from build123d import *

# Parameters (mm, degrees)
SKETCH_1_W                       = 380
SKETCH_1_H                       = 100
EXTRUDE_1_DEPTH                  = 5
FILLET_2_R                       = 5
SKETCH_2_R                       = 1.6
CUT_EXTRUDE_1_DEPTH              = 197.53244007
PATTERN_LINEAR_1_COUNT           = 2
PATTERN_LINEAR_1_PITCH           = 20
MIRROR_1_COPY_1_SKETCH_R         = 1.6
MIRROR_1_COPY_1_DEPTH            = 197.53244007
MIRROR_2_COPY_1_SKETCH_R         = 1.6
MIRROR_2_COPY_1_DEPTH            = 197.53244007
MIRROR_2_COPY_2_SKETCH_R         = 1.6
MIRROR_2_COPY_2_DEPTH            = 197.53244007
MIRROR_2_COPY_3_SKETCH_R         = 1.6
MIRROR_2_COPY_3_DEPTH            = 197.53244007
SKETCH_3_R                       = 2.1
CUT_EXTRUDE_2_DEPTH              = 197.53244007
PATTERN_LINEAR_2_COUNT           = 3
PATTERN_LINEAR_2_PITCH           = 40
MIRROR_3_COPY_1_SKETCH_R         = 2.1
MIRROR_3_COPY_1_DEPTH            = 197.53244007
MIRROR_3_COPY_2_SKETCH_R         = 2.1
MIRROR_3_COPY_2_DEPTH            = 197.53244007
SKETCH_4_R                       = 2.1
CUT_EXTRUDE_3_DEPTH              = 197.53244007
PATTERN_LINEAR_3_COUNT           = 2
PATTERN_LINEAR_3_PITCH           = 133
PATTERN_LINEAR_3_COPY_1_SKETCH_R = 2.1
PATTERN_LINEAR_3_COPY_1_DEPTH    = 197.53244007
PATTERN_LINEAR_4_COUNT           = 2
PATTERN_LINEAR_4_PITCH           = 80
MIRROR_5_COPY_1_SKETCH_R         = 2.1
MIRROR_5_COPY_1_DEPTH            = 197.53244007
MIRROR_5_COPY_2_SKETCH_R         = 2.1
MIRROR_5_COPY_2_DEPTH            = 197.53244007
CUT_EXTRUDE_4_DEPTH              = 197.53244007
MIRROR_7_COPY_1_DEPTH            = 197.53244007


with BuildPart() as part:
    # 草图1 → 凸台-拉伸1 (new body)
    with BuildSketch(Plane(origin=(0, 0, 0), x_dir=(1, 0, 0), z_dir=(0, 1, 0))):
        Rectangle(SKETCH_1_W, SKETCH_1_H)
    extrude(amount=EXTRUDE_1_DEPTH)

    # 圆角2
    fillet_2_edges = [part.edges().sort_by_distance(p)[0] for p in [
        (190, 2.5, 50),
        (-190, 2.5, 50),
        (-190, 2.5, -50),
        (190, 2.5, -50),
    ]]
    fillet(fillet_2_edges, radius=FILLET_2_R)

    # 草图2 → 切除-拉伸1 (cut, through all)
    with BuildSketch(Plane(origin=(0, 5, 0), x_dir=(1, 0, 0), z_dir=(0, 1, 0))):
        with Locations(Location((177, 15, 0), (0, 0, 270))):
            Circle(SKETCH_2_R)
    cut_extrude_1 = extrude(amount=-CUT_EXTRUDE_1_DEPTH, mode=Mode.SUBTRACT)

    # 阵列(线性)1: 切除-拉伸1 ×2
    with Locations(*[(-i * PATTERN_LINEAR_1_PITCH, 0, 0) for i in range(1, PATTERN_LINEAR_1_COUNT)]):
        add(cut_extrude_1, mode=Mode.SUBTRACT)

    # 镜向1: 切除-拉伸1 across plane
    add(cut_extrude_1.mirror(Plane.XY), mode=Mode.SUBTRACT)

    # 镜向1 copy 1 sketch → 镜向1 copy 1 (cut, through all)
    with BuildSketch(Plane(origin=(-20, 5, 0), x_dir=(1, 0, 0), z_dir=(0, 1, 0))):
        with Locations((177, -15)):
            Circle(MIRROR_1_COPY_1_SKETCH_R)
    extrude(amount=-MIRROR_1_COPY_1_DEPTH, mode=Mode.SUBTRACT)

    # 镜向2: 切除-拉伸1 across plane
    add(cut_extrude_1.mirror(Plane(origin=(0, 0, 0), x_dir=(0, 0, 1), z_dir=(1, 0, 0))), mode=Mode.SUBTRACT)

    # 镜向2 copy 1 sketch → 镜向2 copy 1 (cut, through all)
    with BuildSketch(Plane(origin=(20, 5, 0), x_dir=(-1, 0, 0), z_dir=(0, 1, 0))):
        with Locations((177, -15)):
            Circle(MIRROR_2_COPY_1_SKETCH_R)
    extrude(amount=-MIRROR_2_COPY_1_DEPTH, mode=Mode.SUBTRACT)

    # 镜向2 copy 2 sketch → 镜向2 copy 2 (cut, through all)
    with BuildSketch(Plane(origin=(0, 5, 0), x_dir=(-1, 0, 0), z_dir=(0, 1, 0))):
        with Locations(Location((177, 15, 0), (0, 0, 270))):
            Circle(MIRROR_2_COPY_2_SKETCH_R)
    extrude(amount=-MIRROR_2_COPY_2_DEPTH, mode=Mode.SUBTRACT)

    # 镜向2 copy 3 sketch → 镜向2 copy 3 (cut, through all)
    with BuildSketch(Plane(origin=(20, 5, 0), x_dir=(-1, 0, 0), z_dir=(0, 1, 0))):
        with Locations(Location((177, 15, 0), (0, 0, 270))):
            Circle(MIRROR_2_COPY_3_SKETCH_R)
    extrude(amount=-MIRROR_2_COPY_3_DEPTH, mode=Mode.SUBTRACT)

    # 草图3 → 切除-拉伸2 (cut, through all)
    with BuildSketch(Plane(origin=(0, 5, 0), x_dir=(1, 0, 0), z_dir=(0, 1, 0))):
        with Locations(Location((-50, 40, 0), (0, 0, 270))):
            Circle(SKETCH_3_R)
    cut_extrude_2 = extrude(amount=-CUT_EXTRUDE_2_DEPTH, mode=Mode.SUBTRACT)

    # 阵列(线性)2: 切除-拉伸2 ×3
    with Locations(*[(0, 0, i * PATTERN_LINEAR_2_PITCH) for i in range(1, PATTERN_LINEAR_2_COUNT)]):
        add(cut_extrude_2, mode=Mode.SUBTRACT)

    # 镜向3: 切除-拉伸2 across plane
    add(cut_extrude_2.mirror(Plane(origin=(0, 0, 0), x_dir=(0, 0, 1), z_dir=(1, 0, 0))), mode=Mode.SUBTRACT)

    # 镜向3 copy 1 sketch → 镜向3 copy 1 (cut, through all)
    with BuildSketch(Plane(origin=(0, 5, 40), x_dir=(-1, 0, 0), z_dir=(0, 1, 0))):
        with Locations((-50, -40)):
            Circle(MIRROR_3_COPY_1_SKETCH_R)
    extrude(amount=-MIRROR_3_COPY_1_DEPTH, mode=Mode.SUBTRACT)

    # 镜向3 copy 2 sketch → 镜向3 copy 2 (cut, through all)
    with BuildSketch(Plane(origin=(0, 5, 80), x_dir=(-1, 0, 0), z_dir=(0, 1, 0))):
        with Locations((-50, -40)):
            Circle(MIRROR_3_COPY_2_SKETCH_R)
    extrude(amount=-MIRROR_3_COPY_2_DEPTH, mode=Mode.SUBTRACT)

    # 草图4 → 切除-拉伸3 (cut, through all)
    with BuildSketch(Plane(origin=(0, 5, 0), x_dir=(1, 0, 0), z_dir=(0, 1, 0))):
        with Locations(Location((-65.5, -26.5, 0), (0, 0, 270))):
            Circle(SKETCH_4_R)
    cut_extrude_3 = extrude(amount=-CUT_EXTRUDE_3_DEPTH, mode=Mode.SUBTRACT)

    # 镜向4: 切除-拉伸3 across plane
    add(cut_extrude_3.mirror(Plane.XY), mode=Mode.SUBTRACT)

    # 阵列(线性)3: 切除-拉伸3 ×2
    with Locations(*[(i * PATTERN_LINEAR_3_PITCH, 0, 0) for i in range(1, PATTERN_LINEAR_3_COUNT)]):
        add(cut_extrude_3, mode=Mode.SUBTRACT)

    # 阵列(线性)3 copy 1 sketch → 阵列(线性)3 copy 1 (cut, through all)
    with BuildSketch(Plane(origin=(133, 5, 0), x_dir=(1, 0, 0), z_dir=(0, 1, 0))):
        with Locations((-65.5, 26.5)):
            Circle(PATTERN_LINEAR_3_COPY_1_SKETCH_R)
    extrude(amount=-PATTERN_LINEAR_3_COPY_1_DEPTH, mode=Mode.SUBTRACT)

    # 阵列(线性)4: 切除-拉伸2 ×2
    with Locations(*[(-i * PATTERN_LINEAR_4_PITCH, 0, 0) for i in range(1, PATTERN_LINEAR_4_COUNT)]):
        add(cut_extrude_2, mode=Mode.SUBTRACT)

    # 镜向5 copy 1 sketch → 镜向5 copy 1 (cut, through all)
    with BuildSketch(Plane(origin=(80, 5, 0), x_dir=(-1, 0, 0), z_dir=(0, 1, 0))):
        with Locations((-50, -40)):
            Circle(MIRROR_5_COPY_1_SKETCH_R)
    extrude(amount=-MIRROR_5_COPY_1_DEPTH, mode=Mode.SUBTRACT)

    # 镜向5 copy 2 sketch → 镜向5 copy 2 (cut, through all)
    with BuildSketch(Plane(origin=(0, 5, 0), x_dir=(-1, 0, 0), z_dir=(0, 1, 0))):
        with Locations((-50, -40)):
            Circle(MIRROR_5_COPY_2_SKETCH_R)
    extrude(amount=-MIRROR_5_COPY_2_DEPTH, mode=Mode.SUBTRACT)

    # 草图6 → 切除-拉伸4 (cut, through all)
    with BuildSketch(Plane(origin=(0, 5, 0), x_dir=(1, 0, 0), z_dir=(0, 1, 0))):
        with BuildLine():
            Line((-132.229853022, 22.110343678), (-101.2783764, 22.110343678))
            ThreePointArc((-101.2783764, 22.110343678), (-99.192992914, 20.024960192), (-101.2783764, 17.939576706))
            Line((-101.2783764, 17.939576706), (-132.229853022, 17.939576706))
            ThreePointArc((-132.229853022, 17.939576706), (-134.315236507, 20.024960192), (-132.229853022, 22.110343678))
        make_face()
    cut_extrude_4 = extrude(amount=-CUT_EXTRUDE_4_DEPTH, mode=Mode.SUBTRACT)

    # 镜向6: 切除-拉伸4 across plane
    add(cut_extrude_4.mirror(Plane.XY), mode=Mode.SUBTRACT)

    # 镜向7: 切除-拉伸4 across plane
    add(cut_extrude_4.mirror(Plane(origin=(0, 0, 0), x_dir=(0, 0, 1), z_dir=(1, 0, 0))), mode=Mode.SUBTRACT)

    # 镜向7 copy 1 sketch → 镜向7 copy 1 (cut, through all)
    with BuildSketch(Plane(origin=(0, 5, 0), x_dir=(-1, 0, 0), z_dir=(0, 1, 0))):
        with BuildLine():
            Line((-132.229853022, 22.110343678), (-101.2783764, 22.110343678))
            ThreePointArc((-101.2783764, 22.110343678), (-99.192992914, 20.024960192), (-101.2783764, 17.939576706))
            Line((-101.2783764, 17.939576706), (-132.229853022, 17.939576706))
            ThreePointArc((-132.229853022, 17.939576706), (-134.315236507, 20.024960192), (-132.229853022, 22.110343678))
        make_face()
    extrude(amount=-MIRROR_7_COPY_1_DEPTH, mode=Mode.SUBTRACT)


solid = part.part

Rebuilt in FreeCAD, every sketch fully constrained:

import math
import FreeCAD as App
import Part
import Sketcher

V = App.Vector
Q = App.Units.Quantity


def edges_at(feature, points):
    """Names of the edges that pass closest to the given points."""
    edges = feature.Shape.Edges
    near = lambda p: min(range(len(edges)), key=lambda i: edges[i].distToShape(Part.Vertex(*p))[0])
    return sorted({f"Edge{near(p) + 1}" for p in points})

doc = App.newDocument("Part")
body = doc.addObject("PartDesign::Body", "Body")

# Sketch on XZ plane
sketch1 = body.newObject("Sketcher::SketchObject", "Sketch")
sketch1.AttachmentSupport = (doc.getObject("XZ_Plane"), [""])
sketch1.MapMode = "FlatFace"
sketch1.addGeometry([
    Part.LineSegment(V(-190, -50, 0), V(-190, 50, 0)),
    Part.LineSegment(V(-190, 50, 0), V(190, 50, 0)),
    Part.LineSegment(V(190, 50, 0), V(190, -50, 0)),
    Part.LineSegment(V(190, -50, 0), V(-190, -50, 0)),
], False)
sketch1.addConstraint([
    Sketcher.Constraint("Coincident", 0, 2, 1, 1),
    Sketcher.Constraint("Coincident", 1, 2, 2, 1),
    Sketcher.Constraint("Coincident", 2, 2, 3, 1),
    Sketcher.Constraint("Coincident", 3, 2, 0, 1),
    Sketcher.Constraint("Vertical", 0),
    Sketcher.Constraint("Horizontal", 1),
    Sketcher.Constraint("Vertical", 2),
    Sketcher.Constraint("Horizontal", 3),
    Sketcher.Constraint("Symmetric", 0, 2, 2, 2, -1, 1),
    Sketcher.Constraint("DistanceX", 1, 1, 1, 2, Q("380 mm")),
    Sketcher.Constraint("DistanceY", 0, 1, 0, 2, Q("100 mm")),
])
pad1 = body.newObject("PartDesign::Pad", "Pad")
pad1.Profile = sketch1
pad1.Length = 5
pad1.Reversed = True
doc.recompute()

fillet = body.newObject("PartDesign::Fillet", "Fillet")
fillet.Base = (pad1, edges_at(pad1, [
    (190, 2.5, 50),
    (-190, 2.5, 50),
    (-190, 2.5, -50),
    (190, 2.5, -50),
]))
fillet.Radius = 5

# Sketch on XZ plane
sketch2 = body.newObject("Sketcher::SketchObject", "Sketch001")
sketch2.AttachmentSupport = (doc.getObject("XZ_Plane"), [""])
sketch2.MapMode = "FlatFace"
sketch2.AttachmentOffset = App.Placement(V(0, 0, -5), App.Rotation())
sketch2.addGeometry(Part.Circle(V(177, -15, 0), V(0, 0, 1), 1.6), False)
sketch2.addConstraint([
    Sketcher.Constraint("Diameter", 0, Q("3.2 mm")),
    Sketcher.Constraint("DistanceX", -1, 1, 0, 3, Q("177 mm")),
    Sketcher.Constraint("DistanceY", 0, 3, -1, 1, Q("15 mm")),
])
pocket1 = body.newObject("PartDesign::Pocket", "Pocket")
pocket1.Profile = sketch2
pocket1.Type = "ThroughAll"
pocket1.Reversed = True
doc.recompute()

linearpattern = body.newObject("PartDesign::LinearPattern", "LinearPattern")
linearpattern.Originals = [pocket1]
linearpattern.Direction = (doc.getObject("X_Axis"), [""])
linearpattern.Mode = "offset"
linearpattern.Offset = 20
linearpattern.Occurrences = 2
linearpattern.Reversed = True
body.Tip = linearpattern
doc.recompute()

mirrored = body.newObject("PartDesign::Mirrored", "Mirrored")
mirrored.Originals = [pocket1]
mirrored.MirrorPlane = (doc.getObject("XY_Plane"), [""])
body.Tip = mirrored

# Sketch on XZ plane
sketch3 = body.newObject("Sketcher::SketchObject", "Sketch002")
sketch3.AttachmentSupport = (doc.getObject("XZ_Plane"), [""])
sketch3.MapMode = "FlatFace"
sketch3.AttachmentOffset = App.Placement(V(0, 0, -5), App.Rotation())
sketch3.addGeometry(Part.Circle(V(157, 15, 0), V(0, 0, 1), 1.6), False)
sketch3.addConstraint([
    Sketcher.Constraint("Diameter", 0, Q("3.2 mm")),
    Sketcher.Constraint("DistanceX", -1, 1, 0, 3, Q("157 mm")),
    Sketcher.Constraint("DistanceY", -1, 1, 0, 3, Q("15 mm")),
])
pocket2 = body.newObject("PartDesign::Pocket", "Pocket001")
pocket2.Profile = sketch3
pocket2.Type = "ThroughAll"
pocket2.Reversed = True
doc.recompute()

mirrored2 = body.newObject("PartDesign::Mirrored", "Mirrored001")
mirrored2.Originals = [pocket1]
mirrored2.MirrorPlane = (doc.getObject("YZ_Plane"), [""])
body.Tip = mirrored2

# Sketch on XZ plane
sketch4 = body.newObject("Sketcher::SketchObject", "Sketch003")
sketch4.AttachmentSupport = (doc.getObject("XZ_Plane"), [""])
sketch4.MapMode = "FlatFace"
sketch4.AttachmentOffset = App.Placement(V(0, 0, -5), App.Rotation())
sketch4.addGeometry(Part.Circle(V(-157, -15, 0), V(0, 0, 1), 1.6), False)
sketch4.addConstraint([
    Sketcher.Constraint("Diameter", 0, Q("3.2 mm")),
    Sketcher.Constraint("DistanceX", 0, 3, -1, 1, Q("157 mm")),
    Sketcher.Constraint("DistanceY", 0, 3, -1, 1, Q("15 mm")),
])
pocket3 = body.newObject("PartDesign::Pocket", "Pocket002")
pocket3.Profile = sketch4
pocket3.Type = "ThroughAll"
pocket3.Reversed = True

# Sketch on XZ plane
sketch5 = body.newObject("Sketcher::SketchObject", "Sketch004")
sketch5.AttachmentSupport = (doc.getObject("XZ_Plane"), [""])
sketch5.MapMode = "FlatFace"
sketch5.AttachmentOffset = App.Placement(V(0, 0, -5), App.Rotation())
sketch5.addGeometry(Part.Circle(V(-177, 15, 0), V(0, 0, 1), 1.6), False)
sketch5.addConstraint([
    Sketcher.Constraint("Diameter", 0, Q("3.2 mm")),
    Sketcher.Constraint("DistanceX", 0, 3, -1, 1, Q("177 mm")),
    Sketcher.Constraint("DistanceY", -1, 1, 0, 3, Q("15 mm")),
])
pocket4 = body.newObject("PartDesign::Pocket", "Pocket003")
pocket4.Profile = sketch5
pocket4.Type = "ThroughAll"
pocket4.Reversed = True

# Sketch on XZ plane
sketch6 = body.newObject("Sketcher::SketchObject", "Sketch005")
sketch6.AttachmentSupport = (doc.getObject("XZ_Plane"), [""])
sketch6.MapMode = "FlatFace"
sketch6.AttachmentOffset = App.Placement(V(0, 0, -5), App.Rotation())
sketch6.addGeometry(Part.Circle(V(-157, 15, 0), V(0, 0, 1), 1.6), False)
sketch6.addConstraint([
    Sketcher.Constraint("Diameter", 0, Q("3.2 mm")),
    Sketcher.Constraint("DistanceX", 0, 3, -1, 1, Q("157 mm")),
    Sketcher.Constraint("DistanceY", -1, 1, 0, 3, Q("15 mm")),
])
pocket5 = body.newObject("PartDesign::Pocket", "Pocket004")
pocket5.Profile = sketch6
pocket5.Type = "ThroughAll"
pocket5.Reversed = True

# Sketch on XZ plane
sketch7 = body.newObject("Sketcher::SketchObject", "Sketch006")
sketch7.AttachmentSupport = (doc.getObject("XZ_Plane"), [""])
sketch7.MapMode = "FlatFace"
sketch7.AttachmentOffset = App.Placement(V(0, 0, -5), App.Rotation())
sketch7.addGeometry(Part.Circle(V(-50, -40, 0), V(0, 0, 1), 2.1), False)
sketch7.addConstraint([
    Sketcher.Constraint("Diameter", 0, Q("4.2 mm")),
    Sketcher.Constraint("DistanceX", 0, 3, -1, 1, Q("50 mm")),
    Sketcher.Constraint("DistanceY", 0, 3, -1, 1, Q("40 mm")),
])
pocket6 = body.newObject("PartDesign::Pocket", "Pocket005")
pocket6.Profile = sketch7
pocket6.Type = "ThroughAll"
pocket6.Reversed = True
doc.recompute()

linearpattern2 = body.newObject("PartDesign::LinearPattern", "LinearPattern001")
linearpattern2.Originals = [pocket6]
linearpattern2.Direction = (doc.getObject("Z_Axis"), [""])
linearpattern2.Mode = "offset"
linearpattern2.Offset = 40
linearpattern2.Occurrences = 3
body.Tip = linearpattern2
doc.recompute()

mirrored3 = body.newObject("PartDesign::Mirrored", "Mirrored002")
mirrored3.Originals = [pocket6]
mirrored3.MirrorPlane = (doc.getObject("YZ_Plane"), [""])
body.Tip = mirrored3

# Sketch on XZ plane
sketch8 = body.newObject("Sketcher::SketchObject", "Sketch007")
sketch8.AttachmentSupport = (doc.getObject("XZ_Plane"), [""])
sketch8.MapMode = "FlatFace"
sketch8.AttachmentOffset = App.Placement(V(0, 0, -5), App.Rotation())
sketch8.addGeometry(Part.Circle(V(50, 0, 0), V(0, 0, 1), 2.1), False)
sketch8.addConstraint([
    Sketcher.Constraint("PointOnObject", 0, 3, -1),
    Sketcher.Constraint("Diameter", 0, Q("4.2 mm")),
    Sketcher.Constraint("DistanceX", -1, 1, 0, 3, Q("50 mm")),
])
pocket7 = body.newObject("PartDesign::Pocket", "Pocket006")
pocket7.Profile = sketch8
pocket7.Type = "ThroughAll"
pocket7.Reversed = True

# Sketch on XZ plane
sketch9 = body.newObject("Sketcher::SketchObject", "Sketch008")
sketch9.AttachmentSupport = (doc.getObject("XZ_Plane"), [""])
sketch9.MapMode = "FlatFace"
sketch9.AttachmentOffset = App.Placement(V(0, 0, -5), App.Rotation())
sketch9.addGeometry(Part.Circle(V(50, 40, 0), V(0, 0, 1), 2.1), False)
sketch9.addConstraint([
    Sketcher.Constraint("Diameter", 0, Q("4.2 mm")),
    Sketcher.Constraint("DistanceX", -1, 1, 0, 3, Q("50 mm")),
    Sketcher.Constraint("DistanceY", -1, 1, 0, 3, Q("40 mm")),
])
pocket8 = body.newObject("PartDesign::Pocket", "Pocket007")
pocket8.Profile = sketch9
pocket8.Type = "ThroughAll"
pocket8.Reversed = True

# Sketch on XZ plane
sketch10 = body.newObject("Sketcher::SketchObject", "Sketch009")
sketch10.AttachmentSupport = (doc.getObject("XZ_Plane"), [""])
sketch10.MapMode = "FlatFace"
sketch10.AttachmentOffset = App.Placement(V(0, 0, -5), App.Rotation())
sketch10.addGeometry(Part.Circle(V(-65.5, 26.5, 0), V(0, 0, 1), 2.1), False)
sketch10.addConstraint([
    Sketcher.Constraint("Diameter", 0, Q("4.2 mm")),
    Sketcher.Constraint("DistanceX", 0, 3, -1, 1, Q("65.5 mm")),
    Sketcher.Constraint("DistanceY", -1, 1, 0, 3, Q("26.5 mm")),
])
pocket9 = body.newObject("PartDesign::Pocket", "Pocket008")
pocket9.Profile = sketch10
pocket9.Type = "ThroughAll"
pocket9.Reversed = True
doc.recompute()

mirrored4 = body.newObject("PartDesign::Mirrored", "Mirrored003")
mirrored4.Originals = [pocket9]
mirrored4.MirrorPlane = (doc.getObject("XY_Plane"), [""])
body.Tip = mirrored4
doc.recompute()

linearpattern3 = body.newObject("PartDesign::LinearPattern", "LinearPattern002")
linearpattern3.Originals = [pocket9]
linearpattern3.Direction = (doc.getObject("X_Axis"), [""])
linearpattern3.Mode = "offset"
linearpattern3.Offset = 133
linearpattern3.Occurrences = 2
body.Tip = linearpattern3

# Sketch on XZ plane
sketch11 = body.newObject("Sketcher::SketchObject", "Sketch010")
sketch11.AttachmentSupport = (doc.getObject("XZ_Plane"), [""])
sketch11.MapMode = "FlatFace"
sketch11.AttachmentOffset = App.Placement(V(0, 0, -5), App.Rotation())
sketch11.addGeometry(Part.Circle(V(67.5, -26.5, 0), V(0, 0, 1), 2.1), False)
sketch11.addConstraint([
    Sketcher.Constraint("Diameter", 0, Q("4.2 mm")),
    Sketcher.Constraint("DistanceX", -1, 1, 0, 3, Q("67.5 mm")),
    Sketcher.Constraint("DistanceY", 0, 3, -1, 1, Q("26.5 mm")),
])
pocket10 = body.newObject("PartDesign::Pocket", "Pocket009")
pocket10.Profile = sketch11
pocket10.Type = "ThroughAll"
pocket10.Reversed = True
doc.recompute()

linearpattern4 = body.newObject("PartDesign::LinearPattern", "LinearPattern003")
linearpattern4.Originals = [pocket6]
linearpattern4.Direction = (doc.getObject("X_Axis"), [""])
linearpattern4.Mode = "offset"
linearpattern4.Offset = 80
linearpattern4.Occurrences = 2
linearpattern4.Reversed = True
body.Tip = linearpattern4

# Sketch on XZ plane
sketch12 = body.newObject("Sketcher::SketchObject", "Sketch011")
sketch12.AttachmentSupport = (doc.getObject("XZ_Plane"), [""])
sketch12.MapMode = "FlatFace"
sketch12.AttachmentOffset = App.Placement(V(0, 0, -5), App.Rotation())
sketch12.addGeometry(Part.Circle(V(130, -40, 0), V(0, 0, 1), 2.1), False)
sketch12.addConstraint([
    Sketcher.Constraint("Diameter", 0, Q("4.2 mm")),
    Sketcher.Constraint("DistanceX", -1, 1, 0, 3, Q("130 mm")),
    Sketcher.Constraint("DistanceY", 0, 3, -1, 1, Q("40 mm")),
])
pocket11 = body.newObject("PartDesign::Pocket", "Pocket010")
pocket11.Profile = sketch12
pocket11.Type = "ThroughAll"
pocket11.Reversed = True

# Sketch on XZ plane
sketch13 = body.newObject("Sketcher::SketchObject", "Sketch012")
sketch13.AttachmentSupport = (doc.getObject("XZ_Plane"), [""])
sketch13.MapMode = "FlatFace"
sketch13.AttachmentOffset = App.Placement(V(0, 0, -5), App.Rotation())
sketch13.addGeometry(Part.Circle(V(50, -40, 0), V(0, 0, 1), 2.1), False)
sketch13.addConstraint([
    Sketcher.Constraint("Diameter", 0, Q("4.2 mm")),
    Sketcher.Constraint("DistanceX", -1, 1, 0, 3, Q("50 mm")),
    Sketcher.Constraint("DistanceY", 0, 3, -1, 1, Q("40 mm")),
])
pocket12 = body.newObject("PartDesign::Pocket", "Pocket011")
pocket12.Profile = sketch13
pocket12.Type = "ThroughAll"
pocket12.Reversed = True

# Sketch on XZ plane
sketch14 = body.newObject("Sketcher::SketchObject", "Sketch013")
sketch14.AttachmentSupport = (doc.getObject("XZ_Plane"), [""])
sketch14.MapMode = "FlatFace"
sketch14.AttachmentOffset = App.Placement(V(0, 0, -5), App.Rotation())
sketch14.addGeometry([
    Part.LineSegment(V(-101.3, -22.1, 0), V(-132.2, -22.1, 0)),
    Part.ArcOfCircle(Part.Circle(V(-132.2, -20, 0), V(0, 0, 1), 2.1), math.radians(90), math.radians(270)),
    Part.LineSegment(V(-132.2, -17.9, 0), V(-101.3, -17.9, 0)),
    Part.ArcOfCircle(Part.Circle(V(-101.3, -20, 0), V(0, 0, 1), 2.1), math.radians(-90), math.radians(90)),
], False)
sketch14.addConstraint([
    Sketcher.Constraint("Tangent", 0, 2, 1, 2),
    Sketcher.Constraint("Tangent", 1, 1, 2, 1),
    Sketcher.Constraint("Tangent", 2, 2, 3, 2),
    Sketcher.Constraint("Tangent", 3, 1, 0, 1),
    Sketcher.Constraint("Horizontal", 0),
    Sketcher.Constraint("Horizontal", 2),
    Sketcher.Constraint("Radius", 1, Q("2.085383 mm")),
    Sketcher.Constraint("DistanceX", 0, 2, 0, 1, Q("30.951477 mm")),
    Sketcher.Constraint("DistanceY", 1, 3, -1, 1, Q("20.02496 mm")),
    Sketcher.Constraint("DistanceX", 1, 3, -1, 1, Q("132.229853 mm")),
])
pocket13 = body.newObject("PartDesign::Pocket", "Pocket012")
pocket13.Profile = sketch14
pocket13.Type = "ThroughAll"
pocket13.Reversed = True
doc.recompute()

mirrored5 = body.newObject("PartDesign::Mirrored", "Mirrored004")
mirrored5.Originals = [pocket13]
mirrored5.MirrorPlane = (doc.getObject("XY_Plane"), [""])
body.Tip = mirrored5
doc.recompute()

mirrored6 = body.newObject("PartDesign::Mirrored", "Mirrored005")
mirrored6.Originals = [pocket13]
mirrored6.MirrorPlane = (doc.getObject("YZ_Plane"), [""])
body.Tip = mirrored6

# Sketch on XZ plane
sketch15 = body.newObject("Sketcher::SketchObject", "Sketch014")
sketch15.AttachmentSupport = (doc.getObject("XZ_Plane"), [""])
sketch15.MapMode = "FlatFace"
sketch15.AttachmentOffset = App.Placement(V(0, 0, -5), App.Rotation())
sketch15.addGeometry([
    Part.LineSegment(V(101.3, 22.1, 0), V(132.2, 22.1, 0)),
    Part.ArcOfCircle(Part.Circle(V(132.2, 20, 0), V(0, 0, 1), 2.1), math.radians(-90), math.radians(90)),
    Part.LineSegment(V(132.2, 17.9, 0), V(101.3, 17.9, 0)),
    Part.ArcOfCircle(Part.Circle(V(101.3, 20, 0), V(0, 0, 1), 2.1), math.radians(90), math.radians(270)),
], False)
sketch15.addConstraint([
    Sketcher.Constraint("Tangent", 0, 2, 1, 2),
    Sketcher.Constraint("Tangent", 1, 1, 2, 1),
    Sketcher.Constraint("Tangent", 2, 2, 3, 2),
    Sketcher.Constraint("Tangent", 3, 1, 0, 1),
    Sketcher.Constraint("Horizontal", 0),
    Sketcher.Constraint("Horizontal", 2),
    Sketcher.Constraint("Radius", 1, Q("2.085383 mm")),
    Sketcher.Constraint("DistanceX", 0, 1, 0, 2, Q("30.951477 mm")),
    Sketcher.Constraint("DistanceY", -1, 1, 1, 3, Q("20.02496 mm")),
    Sketcher.Constraint("DistanceX", -1, 1, 1, 3, Q("132.229853 mm")),
])
pocket14 = body.newObject("PartDesign::Pocket", "Pocket013")
pocket14.Profile = sketch15
pocket14.Type = "ThroughAll"
pocket14.Reversed = True

doc.recompute()
